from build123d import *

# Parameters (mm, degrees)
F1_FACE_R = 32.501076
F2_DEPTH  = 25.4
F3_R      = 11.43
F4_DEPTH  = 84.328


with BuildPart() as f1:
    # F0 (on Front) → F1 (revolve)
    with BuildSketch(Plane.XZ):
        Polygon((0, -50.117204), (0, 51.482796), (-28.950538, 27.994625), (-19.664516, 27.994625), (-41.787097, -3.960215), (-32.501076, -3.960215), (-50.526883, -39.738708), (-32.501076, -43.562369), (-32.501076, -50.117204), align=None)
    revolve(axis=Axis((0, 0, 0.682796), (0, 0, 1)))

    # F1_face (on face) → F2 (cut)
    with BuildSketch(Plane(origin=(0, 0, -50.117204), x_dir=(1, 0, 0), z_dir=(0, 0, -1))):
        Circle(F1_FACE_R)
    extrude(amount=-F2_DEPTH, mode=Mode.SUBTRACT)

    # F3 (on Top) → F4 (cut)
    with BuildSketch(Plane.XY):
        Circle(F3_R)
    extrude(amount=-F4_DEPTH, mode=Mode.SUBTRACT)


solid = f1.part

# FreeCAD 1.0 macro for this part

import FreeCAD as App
import Part
import Sketcher

V = App.Vector
Q = App.Units.Quantity

doc = App.newDocument("Part")
body = doc.addObject("PartDesign::Body", "Body")

# Sketch on XZ plane
sketch1 = doc.addObject("Sketcher::SketchObject", "Sketch")
body.addObject(sketch1)
sketch1.AttachmentSupport = (doc.XZ_Plane, [""])
sketch1.MapMode = "FlatFace"
sketch1.addGeometry(Part.LineSegment(V(0, -50, 0), V(0, 51, 0)), False)
sketch1.addGeometry(Part.LineSegment(V(0, 51, 0), V(-29, 28, 0)), False)
sketch1.addGeometry(Part.LineSegment(V(-29, 28, 0), V(-20, 28, 0)), False)
sketch1.addGeometry(Part.LineSegment(V(-20, 28, 0), V(-42, -4, 0)), False)
sketch1.addGeometry(Part.LineSegment(V(-42, -4, 0), V(-33, -4, 0)), False)
sketch1.addGeometry(Part.LineSegment(V(-33, -4, 0), V(-51, -40, 0)), False)
sketch1.addGeometry(Part.LineSegment(V(-51, -40, 0), V(-33, -44, 0)), False)
sketch1.addGeometry(Part.LineSegment(V(-33, -44, 0), V(-33, -50, 0)), False)
sketch1.addGeometry(Part.LineSegment(V(-33, -50, 0), V(0, -50, 0)), False)
sketch1.addConstraint(Sketcher.Constraint("Coincident", 0, 2, 1, 1))
sketch1.addConstraint(Sketcher.Constraint("Coincident", 1, 2, 2, 1))
sketch1.addConstraint(Sketcher.Constraint("Coincident", 2, 2, 3, 1))
sketch1.addConstraint(Sketcher.Constraint("Coincident", 3, 2, 4, 1))
sketch1.addConstraint(Sketcher.Constraint("Coincident", 4, 2, 5, 1))
sketch1.addConstraint(Sketcher.Constraint("Coincident", 5, 2, 6, 1))
sketch1.addConstraint(Sketcher.Constraint("Coincident", 6, 2, 7, 1))
sketch1.addConstraint(Sketcher.Constraint("Coincident", 7, 2, 8, 1))
sketch1.addConstraint(Sketcher.Constraint("Coincident", 8, 2, 0, 1))
sketch1.addConstraint(Sketcher.Constraint("Vertical", 0))
sketch1.addConstraint(Sketcher.Constraint("Horizontal", 2))
sketch1.addConstraint(Sketcher.Constraint("Horizontal", 4))
sketch1.addConstraint(Sketcher.Constraint("Vertical", 7))
sketch1.addConstraint(Sketcher.Constraint("Horizontal", 8))
sketch1.addConstraint(Sketcher.Constraint("PointOnObject", 0, 2, -2))
sketch1.addConstraint(Sketcher.Constraint("Vertical", 4, 2, 6, 2))
sketch1.addConstraint(Sketcher.Constraint("Equal", 2, 4))
sketch1.addConstraint(Sketcher.Constraint("DistanceY", 0, 1, 0, 2, Q("4 in")))
sketch1.addConstraint(Sketcher.Constraint("DistanceX", 4, 1, 4, 2, Q("9.286021 mm")))
sketch1.addConstraint(Sketcher.Constraint("Distance", 5, Q("40.062829 mm")))
sketch1.addConstraint(Sketcher.Constraint("DistanceX", 8, 1, 8, 2, Q("32.501076 mm")))
sketch1.addConstraint(Sketcher.Constraint("DistanceY", 7, 2, 7, 1, Q("6.554835 mm")))
sketch1.addConstraint(Sketcher.Constraint("DistanceX", 1, 2, -1, 1, Q("28.950538 mm")))
sketch1.addConstraint(Sketcher.Constraint("DistanceY", 5, 2, -1, 1, Q("39.738708 mm")))
sketch1.addConstraint(Sketcher.Constraint("DistanceY", 6, 2, -1, 1, Q("43.562369 mm")))
sketch1.addConstraint(Sketcher.Constraint("DistanceY", 1, 2, 0, 2, Q("23.488171 mm")))
sketch1.addConstraint(Sketcher.Constraint("DistanceY", 3, 2, 1, 2, Q("31.95484 mm")))
revolution = doc.addObject("PartDesign::Revolution", "Revolution")
body.addObject(revolution)
revolution.Profile = sketch1
revolution.ReferenceAxis = (sketch1, ["V_Axis"])
revolution.Angle = 360

# Sketch on XY plane
sketch2 = doc.addObject("Sketcher::SketchObject", "Sketch001")
body.addObject(sketch2)
sketch2.AttachmentSupport = (doc.XY_Plane, [""])
sketch2.MapMode = "FlatFace"
sketch2.AttachmentOffset = App.Placement(V(0, 0, -50.117204), App.Rotation())
sketch2.addGeometry(Part.Circle(V(0, 0, 0), V(0, 0, 1), 33), False)
sketch2.addConstraint(Sketcher.Constraint("Coincident", 0, 3, -1, 1))
sketch2.addConstraint(Sketcher.Constraint("Diameter", 0, Q("65.002152 mm")))
pocket1 = doc.addObject("PartDesign::Pocket", "Pocket")
body.addObject(pocket1)
pocket1.Profile = sketch2
pocket1.Length = Q("1 in")
pocket1.Reversed = True

# Sketch on XY plane
sketch3 = doc.addObject("Sketcher::SketchObject", "Sketch002")
body.addObject(sketch3)
sketch3.AttachmentSupport = (doc.XY_Plane, [""])
sketch3.MapMode = "FlatFace"
sketch3.addGeometry(Part.Circle(V(0, 0, 0), V(0, 0, 1), 11), False)
sketch3.addConstraint(Sketcher.Constraint("Coincident", 0, 3, -1, 1))
sketch3.addConstraint(Sketcher.Constraint("Diameter", 0, Q("0.9 in")))
pocket2 = doc.addObject("PartDesign::Pocket", "Pocket001")
body.addObject(pocket2)
pocket2.Profile = sketch3
pocket2.Length = Q("3.32 in")

doc.recompute()
